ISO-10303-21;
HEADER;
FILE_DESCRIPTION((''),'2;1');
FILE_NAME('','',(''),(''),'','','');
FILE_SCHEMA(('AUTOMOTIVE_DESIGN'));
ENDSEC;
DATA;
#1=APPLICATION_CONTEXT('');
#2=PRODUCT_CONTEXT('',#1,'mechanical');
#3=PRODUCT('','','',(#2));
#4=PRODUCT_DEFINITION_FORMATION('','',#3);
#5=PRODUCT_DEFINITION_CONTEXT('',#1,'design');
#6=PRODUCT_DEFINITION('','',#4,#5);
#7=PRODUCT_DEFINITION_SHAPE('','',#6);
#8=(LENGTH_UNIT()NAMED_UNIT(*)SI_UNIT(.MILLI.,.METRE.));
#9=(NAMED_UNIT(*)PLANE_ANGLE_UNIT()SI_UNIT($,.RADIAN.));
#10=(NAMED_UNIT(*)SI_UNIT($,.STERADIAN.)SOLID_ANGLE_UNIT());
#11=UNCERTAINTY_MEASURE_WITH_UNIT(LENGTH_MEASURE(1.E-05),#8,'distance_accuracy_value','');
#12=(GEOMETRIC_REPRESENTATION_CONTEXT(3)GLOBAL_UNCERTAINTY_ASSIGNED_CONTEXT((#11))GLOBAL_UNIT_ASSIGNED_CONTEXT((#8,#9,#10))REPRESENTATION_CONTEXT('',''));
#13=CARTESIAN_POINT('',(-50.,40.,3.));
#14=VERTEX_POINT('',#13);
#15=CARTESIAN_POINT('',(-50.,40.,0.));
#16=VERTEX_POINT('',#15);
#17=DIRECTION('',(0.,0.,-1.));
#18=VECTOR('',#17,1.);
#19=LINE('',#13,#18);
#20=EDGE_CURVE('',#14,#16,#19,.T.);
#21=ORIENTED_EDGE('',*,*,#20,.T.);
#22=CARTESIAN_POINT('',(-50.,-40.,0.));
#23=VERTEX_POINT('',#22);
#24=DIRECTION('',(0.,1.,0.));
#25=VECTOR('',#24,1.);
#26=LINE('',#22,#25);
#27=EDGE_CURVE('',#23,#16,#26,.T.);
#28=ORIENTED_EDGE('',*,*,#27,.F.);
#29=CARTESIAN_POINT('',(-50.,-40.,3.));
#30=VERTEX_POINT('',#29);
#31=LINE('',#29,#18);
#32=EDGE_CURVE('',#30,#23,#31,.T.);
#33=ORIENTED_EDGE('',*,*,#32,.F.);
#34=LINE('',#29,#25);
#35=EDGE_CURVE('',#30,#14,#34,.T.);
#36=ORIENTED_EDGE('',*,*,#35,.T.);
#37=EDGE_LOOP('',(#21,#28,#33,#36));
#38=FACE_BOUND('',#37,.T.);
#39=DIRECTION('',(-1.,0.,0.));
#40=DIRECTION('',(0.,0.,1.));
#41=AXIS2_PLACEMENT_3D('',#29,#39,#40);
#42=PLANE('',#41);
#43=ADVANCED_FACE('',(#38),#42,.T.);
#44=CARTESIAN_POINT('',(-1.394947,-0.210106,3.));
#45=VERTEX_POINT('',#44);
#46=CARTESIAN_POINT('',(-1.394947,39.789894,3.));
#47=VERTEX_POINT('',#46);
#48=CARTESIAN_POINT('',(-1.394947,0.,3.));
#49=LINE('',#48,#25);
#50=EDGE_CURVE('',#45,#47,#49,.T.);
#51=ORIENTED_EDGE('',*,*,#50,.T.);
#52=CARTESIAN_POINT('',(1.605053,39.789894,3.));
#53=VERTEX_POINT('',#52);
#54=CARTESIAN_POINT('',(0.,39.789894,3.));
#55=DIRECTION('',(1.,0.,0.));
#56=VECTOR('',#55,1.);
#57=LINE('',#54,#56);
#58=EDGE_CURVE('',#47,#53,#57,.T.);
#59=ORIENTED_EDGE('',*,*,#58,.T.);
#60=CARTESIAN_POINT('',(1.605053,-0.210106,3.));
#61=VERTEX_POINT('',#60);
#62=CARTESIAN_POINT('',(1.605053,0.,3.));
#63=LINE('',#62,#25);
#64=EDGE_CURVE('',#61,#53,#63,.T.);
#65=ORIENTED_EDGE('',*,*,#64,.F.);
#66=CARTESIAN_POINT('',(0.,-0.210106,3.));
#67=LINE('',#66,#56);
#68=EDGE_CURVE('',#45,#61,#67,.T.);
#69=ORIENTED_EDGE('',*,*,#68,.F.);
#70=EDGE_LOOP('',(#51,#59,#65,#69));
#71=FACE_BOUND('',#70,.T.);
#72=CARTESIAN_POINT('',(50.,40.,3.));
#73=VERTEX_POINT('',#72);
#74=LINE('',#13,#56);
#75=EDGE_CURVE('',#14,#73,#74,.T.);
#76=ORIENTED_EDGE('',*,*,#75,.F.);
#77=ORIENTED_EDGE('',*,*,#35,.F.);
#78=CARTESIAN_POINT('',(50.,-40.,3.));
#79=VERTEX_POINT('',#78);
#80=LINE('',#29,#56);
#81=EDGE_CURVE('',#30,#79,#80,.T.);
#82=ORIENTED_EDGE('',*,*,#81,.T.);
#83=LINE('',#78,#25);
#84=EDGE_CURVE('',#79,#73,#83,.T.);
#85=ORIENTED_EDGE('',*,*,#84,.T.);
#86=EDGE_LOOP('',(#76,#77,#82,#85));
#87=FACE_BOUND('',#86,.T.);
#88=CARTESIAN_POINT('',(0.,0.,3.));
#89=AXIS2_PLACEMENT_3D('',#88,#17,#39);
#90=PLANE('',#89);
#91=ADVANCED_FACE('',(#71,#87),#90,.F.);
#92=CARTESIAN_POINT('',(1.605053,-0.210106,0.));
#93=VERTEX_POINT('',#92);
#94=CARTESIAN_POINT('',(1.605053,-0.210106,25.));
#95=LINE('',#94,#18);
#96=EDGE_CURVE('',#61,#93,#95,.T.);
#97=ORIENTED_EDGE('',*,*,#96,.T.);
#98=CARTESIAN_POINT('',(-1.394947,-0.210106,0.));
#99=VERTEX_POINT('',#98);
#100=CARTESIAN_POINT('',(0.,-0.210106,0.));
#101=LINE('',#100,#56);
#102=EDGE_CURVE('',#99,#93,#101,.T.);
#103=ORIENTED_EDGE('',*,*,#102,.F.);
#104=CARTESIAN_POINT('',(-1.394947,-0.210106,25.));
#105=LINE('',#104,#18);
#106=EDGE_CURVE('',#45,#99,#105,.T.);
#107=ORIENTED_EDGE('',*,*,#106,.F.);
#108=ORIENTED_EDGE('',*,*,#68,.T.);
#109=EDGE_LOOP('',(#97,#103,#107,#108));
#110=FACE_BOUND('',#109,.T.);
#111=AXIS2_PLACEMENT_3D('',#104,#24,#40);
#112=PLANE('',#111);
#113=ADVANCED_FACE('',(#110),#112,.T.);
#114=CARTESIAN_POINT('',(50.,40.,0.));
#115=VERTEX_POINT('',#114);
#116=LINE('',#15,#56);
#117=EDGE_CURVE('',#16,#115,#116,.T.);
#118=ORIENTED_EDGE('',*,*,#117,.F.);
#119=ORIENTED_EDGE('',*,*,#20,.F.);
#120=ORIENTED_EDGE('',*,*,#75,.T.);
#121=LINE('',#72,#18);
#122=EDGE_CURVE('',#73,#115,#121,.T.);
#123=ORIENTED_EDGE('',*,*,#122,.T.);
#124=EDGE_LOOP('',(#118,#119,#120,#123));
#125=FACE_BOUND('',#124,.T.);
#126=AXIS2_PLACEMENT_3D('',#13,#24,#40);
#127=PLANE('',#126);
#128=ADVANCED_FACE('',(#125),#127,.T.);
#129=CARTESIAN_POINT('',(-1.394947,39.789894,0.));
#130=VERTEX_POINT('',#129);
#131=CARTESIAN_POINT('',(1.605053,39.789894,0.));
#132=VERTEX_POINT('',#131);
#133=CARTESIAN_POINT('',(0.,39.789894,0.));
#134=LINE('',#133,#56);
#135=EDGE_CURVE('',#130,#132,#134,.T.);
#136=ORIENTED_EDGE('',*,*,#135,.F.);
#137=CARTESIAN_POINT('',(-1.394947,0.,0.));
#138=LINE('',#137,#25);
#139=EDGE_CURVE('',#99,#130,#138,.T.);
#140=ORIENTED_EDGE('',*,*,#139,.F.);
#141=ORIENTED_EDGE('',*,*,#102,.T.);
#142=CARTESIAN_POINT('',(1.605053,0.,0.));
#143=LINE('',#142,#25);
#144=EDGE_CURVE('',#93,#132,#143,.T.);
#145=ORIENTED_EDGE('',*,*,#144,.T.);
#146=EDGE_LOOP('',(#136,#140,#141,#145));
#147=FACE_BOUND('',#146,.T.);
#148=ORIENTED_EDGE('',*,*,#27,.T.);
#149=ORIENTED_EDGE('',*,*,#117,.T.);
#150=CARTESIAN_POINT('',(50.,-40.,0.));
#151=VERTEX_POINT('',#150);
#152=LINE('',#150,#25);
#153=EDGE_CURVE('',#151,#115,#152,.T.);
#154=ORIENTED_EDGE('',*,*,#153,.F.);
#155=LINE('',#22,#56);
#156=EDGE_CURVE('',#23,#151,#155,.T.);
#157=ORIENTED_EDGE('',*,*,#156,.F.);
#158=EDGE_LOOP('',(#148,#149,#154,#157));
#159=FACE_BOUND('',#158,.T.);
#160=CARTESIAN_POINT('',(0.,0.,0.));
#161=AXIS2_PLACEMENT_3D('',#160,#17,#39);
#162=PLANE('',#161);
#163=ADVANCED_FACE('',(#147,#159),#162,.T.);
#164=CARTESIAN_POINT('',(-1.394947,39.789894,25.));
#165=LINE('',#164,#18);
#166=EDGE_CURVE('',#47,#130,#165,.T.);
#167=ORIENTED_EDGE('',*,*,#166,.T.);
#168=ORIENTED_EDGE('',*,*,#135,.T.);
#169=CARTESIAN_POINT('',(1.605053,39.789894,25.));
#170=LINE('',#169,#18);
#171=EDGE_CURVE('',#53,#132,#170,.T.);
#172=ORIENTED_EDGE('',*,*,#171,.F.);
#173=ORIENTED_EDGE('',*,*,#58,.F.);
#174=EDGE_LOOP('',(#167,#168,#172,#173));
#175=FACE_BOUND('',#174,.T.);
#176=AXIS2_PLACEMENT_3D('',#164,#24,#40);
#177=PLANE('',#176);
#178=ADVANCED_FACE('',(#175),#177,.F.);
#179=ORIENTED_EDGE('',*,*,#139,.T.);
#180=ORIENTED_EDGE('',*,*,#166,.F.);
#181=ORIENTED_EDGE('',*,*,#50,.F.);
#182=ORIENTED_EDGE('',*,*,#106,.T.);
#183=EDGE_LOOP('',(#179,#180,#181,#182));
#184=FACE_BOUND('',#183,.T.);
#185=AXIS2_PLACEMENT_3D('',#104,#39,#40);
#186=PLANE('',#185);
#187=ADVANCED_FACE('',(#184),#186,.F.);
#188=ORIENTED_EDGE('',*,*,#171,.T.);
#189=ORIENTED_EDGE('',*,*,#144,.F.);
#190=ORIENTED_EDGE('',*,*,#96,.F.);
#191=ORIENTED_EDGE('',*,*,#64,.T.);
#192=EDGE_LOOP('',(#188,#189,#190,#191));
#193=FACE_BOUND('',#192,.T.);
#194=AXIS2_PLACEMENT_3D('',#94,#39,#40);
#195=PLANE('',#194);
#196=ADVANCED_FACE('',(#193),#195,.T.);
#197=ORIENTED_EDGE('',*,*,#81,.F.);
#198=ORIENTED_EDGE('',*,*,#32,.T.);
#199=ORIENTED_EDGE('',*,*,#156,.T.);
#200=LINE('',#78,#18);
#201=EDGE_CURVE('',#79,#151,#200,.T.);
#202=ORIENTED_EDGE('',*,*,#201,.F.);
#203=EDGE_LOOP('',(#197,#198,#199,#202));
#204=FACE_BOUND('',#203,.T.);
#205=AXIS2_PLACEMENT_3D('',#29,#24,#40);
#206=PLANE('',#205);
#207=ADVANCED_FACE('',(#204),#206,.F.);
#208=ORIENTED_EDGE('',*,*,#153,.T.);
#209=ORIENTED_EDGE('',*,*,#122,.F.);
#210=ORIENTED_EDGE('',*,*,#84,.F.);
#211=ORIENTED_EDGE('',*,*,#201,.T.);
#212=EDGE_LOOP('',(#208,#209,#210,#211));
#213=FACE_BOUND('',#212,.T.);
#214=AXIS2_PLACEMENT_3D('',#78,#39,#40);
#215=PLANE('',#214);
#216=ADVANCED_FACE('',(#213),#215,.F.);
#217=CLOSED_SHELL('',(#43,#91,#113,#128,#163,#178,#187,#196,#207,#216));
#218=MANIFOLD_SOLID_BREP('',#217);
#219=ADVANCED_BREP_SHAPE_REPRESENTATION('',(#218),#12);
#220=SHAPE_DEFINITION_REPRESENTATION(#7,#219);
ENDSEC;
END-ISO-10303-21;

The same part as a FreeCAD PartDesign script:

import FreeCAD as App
import Part
import Sketcher


def add_polygon(sketch, points):
    """Adds a closed chain of lines whose ends are joined by coincident constraints."""
    first, n = sketch.GeometryCount, len(points)
    for a, b in zip(points, points[1:] + points[:1]):
        sketch.addGeometry(Part.LineSegment(App.Vector(*a, 0), App.Vector(*b, 0)), False)
    for i in range(n):
        sketch.addConstraint(Sketcher.Constraint("Coincident", first + i, 2, first + (i + 1) % n, 1))

doc = App.newDocument("Part")
body = doc.addObject("PartDesign::Body", "Body")

# Sketch on XY plane
sketch1 = body.newObject("Sketcher::SketchObject", "Sketch")
sketch1.AttachmentSupport = (doc.getObject("XY_Plane"), [""])
sketch1.MapMode = "FlatFace"
add_polygon(sketch1, [(-50, 40), (-50, -40), (50, -40), (50, 40)])  # lines 0-3
sketch1.addConstraint(Sketcher.Constraint("Vertical", 0))
sketch1.addConstraint(Sketcher.Constraint("Horizontal", 1))
sketch1.addConstraint(Sketcher.Constraint("Vertical", 2))
sketch1.addConstraint(Sketcher.Constraint("Horizontal", 3))
sketch1.addConstraint(Sketcher.Constraint("Symmetric", 0, 2, 2, 2, -1, 1))
sketch1.addConstraint(Sketcher.Constraint("DistanceX", 1, 1, 1, 2, 100.0))
sketch1.addConstraint(Sketcher.Constraint("DistanceY", 0, 2, 0, 1, 80.0))
pad1 = body.newObject("PartDesign::Pad", "Pad")
pad1.Profile = sketch1
pad1.Length = 3

# Sketch on XY plane
sketch2 = body.newObject("Sketcher::SketchObject", "Sketch001")
sketch2.AttachmentSupport = (doc.getObject("XY_Plane"), [""])
sketch2.MapMode = "FlatFace"
sketch2.AttachmentOffset = App.Placement(App.Vector(0, 0, 3), App.Rotation())
add_polygon(sketch2, [(-1.4, 39.8), (-1.4, -0.2), (1.6, -0.2), (1.6, 39.8)])  # lines 0-3
sketch2.addConstraint(Sketcher.Constraint("Vertical", 0))
sketch2.addConstraint(Sketcher.Constraint("Horizontal", 1))
sketch2.addConstraint(Sketcher.Constraint("Vertical", 2))
sketch2.addConstraint(Sketcher.Constraint("Horizontal", 3))
sketch2.addConstraint(Sketcher.Constraint("DistanceX", 1, 1, 1, 2, 3.0))
sketch2.addConstraint(Sketcher.Constraint("DistanceY", 0, 2, 0, 1, 40.0))
sketch2.addConstraint(Sketcher.Constraint("DistanceX", 0, 2, -1, 1, 1.394947))
sketch2.addConstraint(Sketcher.Constraint("DistanceY", 0, 2, -1, 1, 0.210106))
pocket1 = body.newObject("PartDesign::Pocket", "Pocket")
pocket1.Profile = sketch2
pocket1.Type = "ThroughAll"
pocket1.Midplane = True

doc.recompute()
